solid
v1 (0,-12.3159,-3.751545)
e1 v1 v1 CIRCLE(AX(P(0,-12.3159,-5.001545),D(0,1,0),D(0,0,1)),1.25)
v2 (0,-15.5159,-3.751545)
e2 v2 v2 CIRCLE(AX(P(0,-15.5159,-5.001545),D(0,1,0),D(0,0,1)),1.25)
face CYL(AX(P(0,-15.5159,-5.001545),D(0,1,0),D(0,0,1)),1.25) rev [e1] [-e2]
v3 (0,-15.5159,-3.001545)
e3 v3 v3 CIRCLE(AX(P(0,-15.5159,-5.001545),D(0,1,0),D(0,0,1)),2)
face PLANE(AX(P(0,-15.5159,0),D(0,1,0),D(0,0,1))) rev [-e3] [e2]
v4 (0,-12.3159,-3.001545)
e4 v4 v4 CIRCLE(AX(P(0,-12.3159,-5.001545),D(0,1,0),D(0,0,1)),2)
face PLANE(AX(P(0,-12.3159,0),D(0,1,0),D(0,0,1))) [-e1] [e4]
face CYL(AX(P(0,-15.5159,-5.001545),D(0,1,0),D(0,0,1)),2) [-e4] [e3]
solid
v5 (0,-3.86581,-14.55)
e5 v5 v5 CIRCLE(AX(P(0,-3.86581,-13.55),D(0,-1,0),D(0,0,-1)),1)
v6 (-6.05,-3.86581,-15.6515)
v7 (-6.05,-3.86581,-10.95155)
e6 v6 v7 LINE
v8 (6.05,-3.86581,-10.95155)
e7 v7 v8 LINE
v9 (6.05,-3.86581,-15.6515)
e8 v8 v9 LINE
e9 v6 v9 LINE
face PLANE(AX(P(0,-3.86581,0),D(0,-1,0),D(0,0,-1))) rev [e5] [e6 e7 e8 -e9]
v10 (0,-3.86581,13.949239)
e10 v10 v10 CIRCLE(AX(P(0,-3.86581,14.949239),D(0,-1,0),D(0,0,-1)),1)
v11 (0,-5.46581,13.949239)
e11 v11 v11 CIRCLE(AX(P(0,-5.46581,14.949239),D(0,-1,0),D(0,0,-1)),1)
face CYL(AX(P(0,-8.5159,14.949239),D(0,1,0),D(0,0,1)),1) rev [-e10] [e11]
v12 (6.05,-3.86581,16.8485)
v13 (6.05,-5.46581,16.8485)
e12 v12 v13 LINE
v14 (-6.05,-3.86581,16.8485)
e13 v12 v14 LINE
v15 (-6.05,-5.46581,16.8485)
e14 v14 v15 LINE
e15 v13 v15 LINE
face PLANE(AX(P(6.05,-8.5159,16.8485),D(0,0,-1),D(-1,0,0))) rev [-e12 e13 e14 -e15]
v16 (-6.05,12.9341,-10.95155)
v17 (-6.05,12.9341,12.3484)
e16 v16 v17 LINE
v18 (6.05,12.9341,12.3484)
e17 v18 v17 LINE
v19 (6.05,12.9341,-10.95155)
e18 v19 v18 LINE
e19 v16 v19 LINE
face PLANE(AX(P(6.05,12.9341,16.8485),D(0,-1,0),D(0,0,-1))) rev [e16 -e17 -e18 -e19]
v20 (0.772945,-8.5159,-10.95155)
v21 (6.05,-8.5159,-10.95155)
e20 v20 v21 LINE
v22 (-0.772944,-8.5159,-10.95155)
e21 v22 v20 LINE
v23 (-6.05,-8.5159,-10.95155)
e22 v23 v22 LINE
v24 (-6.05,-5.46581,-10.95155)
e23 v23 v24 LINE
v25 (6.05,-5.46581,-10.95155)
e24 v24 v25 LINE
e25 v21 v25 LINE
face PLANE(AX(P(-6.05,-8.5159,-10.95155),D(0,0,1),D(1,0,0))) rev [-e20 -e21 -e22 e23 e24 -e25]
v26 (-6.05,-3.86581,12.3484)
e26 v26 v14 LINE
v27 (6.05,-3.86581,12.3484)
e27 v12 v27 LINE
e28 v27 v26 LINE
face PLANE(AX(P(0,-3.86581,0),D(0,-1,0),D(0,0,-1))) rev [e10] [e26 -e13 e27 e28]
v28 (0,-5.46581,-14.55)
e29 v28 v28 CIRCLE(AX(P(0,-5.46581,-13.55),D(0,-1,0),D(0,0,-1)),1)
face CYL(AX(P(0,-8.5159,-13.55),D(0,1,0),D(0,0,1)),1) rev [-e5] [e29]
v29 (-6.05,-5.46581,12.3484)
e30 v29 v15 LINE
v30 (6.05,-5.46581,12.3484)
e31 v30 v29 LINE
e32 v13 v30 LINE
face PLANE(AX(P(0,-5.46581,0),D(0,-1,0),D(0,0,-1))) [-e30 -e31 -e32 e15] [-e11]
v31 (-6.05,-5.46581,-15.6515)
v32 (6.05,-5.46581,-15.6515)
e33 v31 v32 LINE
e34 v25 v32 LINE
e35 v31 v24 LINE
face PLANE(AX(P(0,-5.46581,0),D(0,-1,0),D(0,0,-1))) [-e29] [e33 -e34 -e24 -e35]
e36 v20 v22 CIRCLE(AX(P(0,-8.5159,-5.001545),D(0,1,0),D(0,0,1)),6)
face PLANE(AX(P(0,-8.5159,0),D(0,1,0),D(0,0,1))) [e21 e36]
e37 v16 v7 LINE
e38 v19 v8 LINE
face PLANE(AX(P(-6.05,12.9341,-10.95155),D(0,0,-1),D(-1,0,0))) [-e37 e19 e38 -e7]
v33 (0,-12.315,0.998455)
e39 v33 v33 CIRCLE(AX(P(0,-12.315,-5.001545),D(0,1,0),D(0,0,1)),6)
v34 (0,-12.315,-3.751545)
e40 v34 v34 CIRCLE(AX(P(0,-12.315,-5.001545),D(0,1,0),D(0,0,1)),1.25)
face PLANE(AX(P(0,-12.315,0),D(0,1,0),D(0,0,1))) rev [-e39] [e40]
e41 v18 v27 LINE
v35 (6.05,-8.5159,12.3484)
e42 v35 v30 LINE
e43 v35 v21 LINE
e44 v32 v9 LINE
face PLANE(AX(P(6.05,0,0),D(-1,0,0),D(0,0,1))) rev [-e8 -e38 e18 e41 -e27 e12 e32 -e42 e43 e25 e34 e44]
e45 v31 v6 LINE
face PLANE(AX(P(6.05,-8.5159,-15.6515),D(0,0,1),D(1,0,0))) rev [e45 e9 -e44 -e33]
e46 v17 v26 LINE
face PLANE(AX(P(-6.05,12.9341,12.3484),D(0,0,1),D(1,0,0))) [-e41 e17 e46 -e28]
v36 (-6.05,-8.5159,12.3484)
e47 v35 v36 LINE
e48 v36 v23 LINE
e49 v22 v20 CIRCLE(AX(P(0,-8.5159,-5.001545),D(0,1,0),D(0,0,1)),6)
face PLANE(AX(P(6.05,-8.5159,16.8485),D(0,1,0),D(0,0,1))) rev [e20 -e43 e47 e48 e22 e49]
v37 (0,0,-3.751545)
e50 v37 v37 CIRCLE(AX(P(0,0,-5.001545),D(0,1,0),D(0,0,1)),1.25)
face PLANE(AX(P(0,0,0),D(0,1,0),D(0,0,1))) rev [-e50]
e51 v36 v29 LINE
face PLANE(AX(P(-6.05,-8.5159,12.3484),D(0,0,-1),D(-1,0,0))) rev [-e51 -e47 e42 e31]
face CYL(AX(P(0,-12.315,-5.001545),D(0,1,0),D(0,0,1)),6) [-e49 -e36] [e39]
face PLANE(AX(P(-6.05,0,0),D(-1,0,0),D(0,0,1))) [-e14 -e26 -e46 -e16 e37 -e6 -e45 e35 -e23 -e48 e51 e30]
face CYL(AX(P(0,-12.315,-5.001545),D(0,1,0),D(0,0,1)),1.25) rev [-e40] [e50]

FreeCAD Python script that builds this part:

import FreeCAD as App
import Part
import Sketcher
from FreeCAD import Vector
Q = App.Units.Quantity

doc = App.newDocument("Part")
body = doc.addObject("PartDesign::Body", "Body")

sketch1 = doc.addObject("Sketcher::SketchObject", "Sketch")
body.addObject(sketch1)
sketch1.AttachmentSupport = (doc.YZ_Plane, [""])
sketch1.MapMode = "FlatFace"
sketch1.addGeometry(Part.LineSegment(Vector(13, 17, 0), Vector(-9, 17, 0)), False)
sketch1.addGeometry(Part.LineSegment(Vector(-9, 17, 0), Vector(-9, -16, 0)), False)
sketch1.addGeometry(Part.LineSegment(Vector(-9, -16, 0), Vector(13, -16, 0)), False)
sketch1.addGeometry(Part.LineSegment(Vector(13, -16, 0), Vector(13, 17, 0)), False)
sketch1.addConstraint(Sketcher.Constraint("Coincident", 0, 2, 1, 1))
sketch1.addConstraint(Sketcher.Constraint("Coincident", 1, 2, 2, 1))
sketch1.addConstraint(Sketcher.Constraint("Coincident", 2, 2, 3, 1))
sketch1.addConstraint(Sketcher.Constraint("Coincident", 3, 2, 0, 1))
sketch1.addConstraint(Sketcher.Constraint("Horizontal", 0))
sketch1.addConstraint(Sketcher.Constraint("Vertical", 1))
sketch1.addConstraint(Sketcher.Constraint("Horizontal", 2))
sketch1.addConstraint(Sketcher.Constraint("Vertical", 3))
sketch1.addConstraint(Sketcher.Constraint("DistanceY", 1, 2, 1, 1, Q("32.5 mm")))
sketch1.addConstraint(Sketcher.Constraint("DistanceX", 0, 2, 0, 1, Q("21.45 mm")))
sketch1.addConstraint(Sketcher.Constraint("DistanceX", 0, 2, -1, 1, Q("8.5159 mm")))
sketch1.addConstraint(Sketcher.Constraint("DistanceY", -1, 1, 0, 2, Q("16.8485 mm")))
pad1 = doc.addObject("PartDesign::Pad", "Pad")
body.addObject(pad1)
pad1.Profile = sketch1
pad1.Length = 12.1
pad1.Midplane = True

sketch2 = doc.addObject("Sketcher::SketchObject", "Sketch001")
body.addObject(sketch2)
sketch2.AttachmentSupport = (doc.XZ_Plane, [""])
sketch2.MapMode = "FlatFace"
sketch2.AttachmentOffset = App.Placement(Vector(0, 0, 3.86581), App.Rotation())
sketch2.addGeometry(Part.LineSegment(Vector(-6, -15.7, 0), Vector(-6, -11, 0)), False)
sketch2.addGeometry(Part.LineSegment(Vector(-6, -11, 0), Vector(6, -11, 0)), False)
sketch2.addGeometry(Part.LineSegment(Vector(6, -11, 0), Vector(6, -15.7, 0)), False)
sketch2.addGeometry(Part.LineSegment(Vector(6, -15.7, 0), Vector(-6, -15.7, 0)), False)
sketch2.addGeometry(Part.LineSegment(Vector(-6, 12.3, 0), Vector(-6, 16.9, 0)), False)
sketch2.addGeometry(Part.LineSegment(Vector(-6, 16.9, 0), Vector(6, 16.9, 0)), False)
sketch2.addGeometry(Part.LineSegment(Vector(6, 16.9, 0), Vector(6, 12.3, 0)), False)
sketch2.addGeometry(Part.LineSegment(Vector(6, 12.3, 0), Vector(-6, 12.3, 0)), False)
sketch2.addConstraint(Sketcher.Constraint("Coincident", 0, 2, 1, 1))
sketch2.addConstraint(Sketcher.Constraint("Coincident", 1, 2, 2, 1))
sketch2.addConstraint(Sketcher.Constraint("Coincident", 2, 2, 3, 1))
sketch2.addConstraint(Sketcher.Constraint("Coincident", 3, 2, 0, 1))
sketch2.addConstraint(Sketcher.Constraint("Coincident", 4, 2, 5, 1))
sketch2.addConstraint(Sketcher.Constraint("Coincident", 5, 2, 6, 1))
sketch2.addConstraint(Sketcher.Constraint("Coincident", 6, 2, 7, 1))
sketch2.addConstraint(Sketcher.Constraint("Coincident", 7, 2, 4, 1))
sketch2.addConstraint(Sketcher.Constraint("Vertical", 0))
sketch2.addConstraint(Sketcher.Constraint("Horizontal", 1))
sketch2.addConstraint(Sketcher.Constraint("Vertical", 2))
sketch2.addConstraint(Sketcher.Constraint("Horizontal", 3))
sketch2.addConstraint(Sketcher.Constraint("Vertical", 4))
sketch2.addConstraint(Sketcher.Constraint("Horizontal", 5))
sketch2.addConstraint(Sketcher.Constraint("Vertical", 6))
sketch2.addConstraint(Sketcher.Constraint("Horizontal", 7))
sketch2.addConstraint(Sketcher.Constraint("Vertical", 3, 2, 4, 2))
sketch2.addConstraint(Sketcher.Constraint("Vertical", 2, 2, 5, 2))
sketch2.addConstraint(Sketcher.Constraint("DistanceX", 1, 1, 1, 2, Q("12.1 mm")))
sketch2.addConstraint(Sketcher.Constraint("DistanceY", 0, 1, 0, 2, Q("4.7 mm")))
sketch2.addConstraint(Sketcher.Constraint("DistanceY", 4, 1, 4, 2, Q("4.6 mm")))
sketch2.addConstraint(Sketcher.Constraint("DistanceX", 0, 2, -1, 1, Q("6.05 mm")))
sketch2.addConstraint(Sketcher.Constraint("DistanceY", -1, 1, 4, 2, Q("16.9484 mm")))
sketch2.addConstraint(Sketcher.Constraint("DistanceY", 0, 2, -1, 1, Q("10.95155 mm")))
pocket1 = doc.addObject("PartDesign::Pocket", "Pocket")
body.addObject(pocket1)
pocket1.Profile = sketch2
pocket1.Type = "ThroughAll"

sketch3 = doc.addObject("Sketcher::SketchObject", "Sketch002")
body.addObject(sketch3)
sketch3.AttachmentSupport = (doc.XZ_Plane, [""])
sketch3.MapMode = "FlatFace"
sketch3.AttachmentOffset = App.Placement(Vector(0, 0, 5.46581), App.Rotation())
sketch3.addGeometry(Part.LineSegment(Vector(-6, -15.7, 0), Vector(-6, -11, 0)), False)
sketch3.addGeometry(Part.LineSegment(Vector(-6, -11, 0), Vector(6, -11, 0)), False)
sketch3.addGeometry(Part.LineSegment(Vector(6, -11, 0), Vector(6, -15.7, 0)), False)
sketch3.addGeometry(Part.LineSegment(Vector(6, -15.7, 0), Vector(-6, -15.7, 0)), False)
sketch3.addGeometry(Part.LineSegment(Vector(-6, 12.3, 0), Vector(-6, 16.9, 0)), False)
sketch3.addGeometry(Part.LineSegment(Vector(-6, 16.9, 0), Vector(6, 16.9, 0)), False)
sketch3.addGeometry(Part.LineSegment(Vector(6, 16.9, 0), Vector(6, 12.3, 0)), False)
sketch3.addGeometry(Part.LineSegment(Vector(6, 12.3, 0), Vector(-6, 12.3, 0)), False)
sketch3.addConstraint(Sketcher.Constraint("Coincident", 0, 2, 1, 1))
sketch3.addConstraint(Sketcher.Constraint("Coincident", 1, 2, 2, 1))
sketch3.addConstraint(Sketcher.Constraint("Coincident", 2, 2, 3, 1))
sketch3.addConstraint(Sketcher.Constraint("Coincident", 3, 2, 0, 1))
sketch3.addConstraint(Sketcher.Constraint("Coincident", 4, 2, 5, 1))
sketch3.addConstraint(Sketcher.Constraint("Coincident", 5, 2, 6, 1))
sketch3.addConstraint(Sketcher.Constraint("Coincident", 6, 2, 7, 1))
sketch3.addConstraint(Sketcher.Constraint("Coincident", 7, 2, 4, 1))
sketch3.addConstraint(Sketcher.Constraint("Vertical", 0))
sketch3.addConstraint(Sketcher.Constraint("Horizontal", 1))
sketch3.addConstraint(Sketcher.Constraint("Vertical", 2))
sketch3.addConstraint(Sketcher.Constraint("Horizontal", 3))
sketch3.addConstraint(Sketcher.Constraint("Vertical", 4))
sketch3.addConstraint(Sketcher.Constraint("Horizontal", 5))
sketch3.addConstraint(Sketcher.Constraint("Vertical", 6))
sketch3.addConstraint(Sketcher.Constraint("Horizontal", 7))
sketch3.addConstraint(Sketcher.Constraint("Vertical", 3, 2, 4, 2))
sketch3.addConstraint(Sketcher.Constraint("Vertical", 2, 2, 5, 2))
sketch3.addConstraint(Sketcher.Constraint("DistanceX", 1, 1, 1, 2, Q("12.1 mm")))
sketch3.addConstraint(Sketcher.Constraint("DistanceY", 0, 1, 0, 2, Q("4.7 mm")))
sketch3.addConstraint(Sketcher.Constraint("DistanceY", 4, 1, 4, 2, Q("4.6 mm")))
sketch3.addConstraint(Sketcher.Constraint("DistanceX", 0, 2, -1, 1, Q("6.05 mm")))
sketch3.addConstraint(Sketcher.Constraint("DistanceY", -1, 1, 4, 2, Q("16.9484 mm")))
sketch3.addConstraint(Sketcher.Constraint("DistanceY", 0, 2, -1, 1, Q("10.95155 mm")))
pocket2 = doc.addObject("PartDesign::Pocket", "Pocket001")
body.addObject(pocket2)
pocket2.Profile = sketch3
pocket2.Type = "ThroughAll"
pocket2.Reversed = True

sketch4 = doc.addObject("Sketcher::SketchObject", "Sketch003")
body.addObject(sketch4)
sketch4.AttachmentSupport = (doc.XZ_Plane, [""])
sketch4.MapMode = "FlatFace"
sketch4.addGeometry(Part.Circle(Vector(0, -13.6, 0), Vector(0, 0, 1), 1), False)
sketch4.addGeometry(Part.Circle(Vector(0, 14.9, 0), Vector(0, 0, 1), 1), False)
sketch4.addConstraint(Sketcher.Constraint("Equal", 0, 1))
sketch4.addConstraint(Sketcher.Constraint("PointOnObject", 0, 3, -2))
sketch4.addConstraint(Sketcher.Constraint("PointOnObject", 1, 3, -2))
sketch4.addConstraint(Sketcher.Constraint("Diameter", 0, Q("2 mm")))
sketch4.addConstraint(Sketcher.Constraint("DistanceY", 0, 3, -1, 1, Q("13.55 mm")))
sketch4.addConstraint(Sketcher.Constraint("DistanceY", -1, 1, 1, 3, Q("14.949239 mm")))
pocket3 = doc.addObject("PartDesign::Pocket", "Pocket002")
body.addObject(pocket3)
pocket3.Profile = sketch4
pocket3.Type = "ThroughAll"
pocket3.Reversed = True

sketch5 = doc.addObject("Sketcher::SketchObject", "Sketch004")
body.addObject(sketch5)
sketch5.AttachmentSupport = (doc.XZ_Plane, [""])
sketch5.MapMode = "FlatFace"
sketch5.AttachmentOffset = App.Placement(Vector(0, 0, 8.5159), App.Rotation())
sketch5.addGeometry(Part.Circle(Vector(0, -5, 0), Vector(0, 0, 1), 6), False)
sketch5.addGeometry(Part.Circle(Vector(0, -5, 0), Vector(0, 0, 1), 1.2), False)
sketch5.addConstraint(Sketcher.Constraint("Coincident", 1, 3, 0, 3))
sketch5.addConstraint(Sketcher.Constraint("PointOnObject", 0, 3, -2))
sketch5.addConstraint(Sketcher.Constraint("Diameter", 0, Q("12 mm")))
sketch5.addConstraint(Sketcher.Constraint("Diameter", 1, Q("2.5 mm")))
sketch5.addConstraint(Sketcher.Constraint("DistanceY", 0, 3, -1, 1, Q("5.001545 mm")))
pad2 = doc.addObject("PartDesign::Pad", "Pad001")
body.addObject(pad2)
pad2.Profile = sketch5
pad2.Length = 3.7991
body2 = doc.addObject("PartDesign::Body", "Body001")

sketch6 = doc.addObject("Sketcher::SketchObject", "Sketch005")
body2.addObject(sketch6)
sketch6.AttachmentSupport = (doc.getObject("XZ_Plane001"), [""])
sketch6.MapMode = "FlatFace"
sketch6.AttachmentOffset = App.Placement(Vector(0, 0, 12.3159), App.Rotation())
sketch6.addGeometry(Part.Circle(Vector(0, -5, 0), Vector(0, 0, 1), 2), False)
sketch6.addConstraint(Sketcher.Constraint("PointOnObject", 0, 3, -2))
sketch6.addConstraint(Sketcher.Constraint("Diameter", 0, Q("4 mm")))
sketch6.addConstraint(Sketcher.Constraint("DistanceY", 0, 3, -1, 1, Q("5.001545 mm")))
pad3 = doc.addObject("PartDesign::Pad", "Pad002")
body2.addObject(pad3)
pad3.Profile = sketch6
pad3.Length = 3.2
body3 = doc.addObject("PartDesign::Body", "Body002")

sketch7 = doc.addObject("Sketcher::SketchObject", "Sketch006")
body3.addObject(sketch7)
sketch7.AttachmentSupport = (doc.getObject("XZ_Plane002"), [""])
sketch7.MapMode = "FlatFace"
sketch7.addGeometry(Part.Circle(Vector(0, -5, 0), Vector(0, 0, 1), 1.2), False)
sketch7.addConstraint(Sketcher.Constraint("PointOnObject", 0, 3, -2))
sketch7.addConstraint(Sketcher.Constraint("Diameter", 0, Q("2.5 mm")))
sketch7.addConstraint(Sketcher.Constraint("DistanceY", 0, 3, -1, 1, Q("5.001545 mm")))
pad4 = doc.addObject("PartDesign::Pad", "Pad003")
body3.addObject(pad4)
pad4.Profile = sketch7
pad4.Length = 24.690032
doc.recompute()

body4 = doc.addObject("PartDesign::Body", "Body003")
body4.BaseFeature = body3
boolean = doc.addObject("PartDesign::Boolean", "Boolean")
body.addObject(boolean)
boolean.Type = "Cut"
boolean.addObjects([body4])
doc.recompute()

boolean2 = doc.addObject("PartDesign::Boolean", "Boolean001")
body2.addObject(boolean2)
boolean2.Type = "Cut"
boolean2.addObjects([body3])

doc.recompute()
